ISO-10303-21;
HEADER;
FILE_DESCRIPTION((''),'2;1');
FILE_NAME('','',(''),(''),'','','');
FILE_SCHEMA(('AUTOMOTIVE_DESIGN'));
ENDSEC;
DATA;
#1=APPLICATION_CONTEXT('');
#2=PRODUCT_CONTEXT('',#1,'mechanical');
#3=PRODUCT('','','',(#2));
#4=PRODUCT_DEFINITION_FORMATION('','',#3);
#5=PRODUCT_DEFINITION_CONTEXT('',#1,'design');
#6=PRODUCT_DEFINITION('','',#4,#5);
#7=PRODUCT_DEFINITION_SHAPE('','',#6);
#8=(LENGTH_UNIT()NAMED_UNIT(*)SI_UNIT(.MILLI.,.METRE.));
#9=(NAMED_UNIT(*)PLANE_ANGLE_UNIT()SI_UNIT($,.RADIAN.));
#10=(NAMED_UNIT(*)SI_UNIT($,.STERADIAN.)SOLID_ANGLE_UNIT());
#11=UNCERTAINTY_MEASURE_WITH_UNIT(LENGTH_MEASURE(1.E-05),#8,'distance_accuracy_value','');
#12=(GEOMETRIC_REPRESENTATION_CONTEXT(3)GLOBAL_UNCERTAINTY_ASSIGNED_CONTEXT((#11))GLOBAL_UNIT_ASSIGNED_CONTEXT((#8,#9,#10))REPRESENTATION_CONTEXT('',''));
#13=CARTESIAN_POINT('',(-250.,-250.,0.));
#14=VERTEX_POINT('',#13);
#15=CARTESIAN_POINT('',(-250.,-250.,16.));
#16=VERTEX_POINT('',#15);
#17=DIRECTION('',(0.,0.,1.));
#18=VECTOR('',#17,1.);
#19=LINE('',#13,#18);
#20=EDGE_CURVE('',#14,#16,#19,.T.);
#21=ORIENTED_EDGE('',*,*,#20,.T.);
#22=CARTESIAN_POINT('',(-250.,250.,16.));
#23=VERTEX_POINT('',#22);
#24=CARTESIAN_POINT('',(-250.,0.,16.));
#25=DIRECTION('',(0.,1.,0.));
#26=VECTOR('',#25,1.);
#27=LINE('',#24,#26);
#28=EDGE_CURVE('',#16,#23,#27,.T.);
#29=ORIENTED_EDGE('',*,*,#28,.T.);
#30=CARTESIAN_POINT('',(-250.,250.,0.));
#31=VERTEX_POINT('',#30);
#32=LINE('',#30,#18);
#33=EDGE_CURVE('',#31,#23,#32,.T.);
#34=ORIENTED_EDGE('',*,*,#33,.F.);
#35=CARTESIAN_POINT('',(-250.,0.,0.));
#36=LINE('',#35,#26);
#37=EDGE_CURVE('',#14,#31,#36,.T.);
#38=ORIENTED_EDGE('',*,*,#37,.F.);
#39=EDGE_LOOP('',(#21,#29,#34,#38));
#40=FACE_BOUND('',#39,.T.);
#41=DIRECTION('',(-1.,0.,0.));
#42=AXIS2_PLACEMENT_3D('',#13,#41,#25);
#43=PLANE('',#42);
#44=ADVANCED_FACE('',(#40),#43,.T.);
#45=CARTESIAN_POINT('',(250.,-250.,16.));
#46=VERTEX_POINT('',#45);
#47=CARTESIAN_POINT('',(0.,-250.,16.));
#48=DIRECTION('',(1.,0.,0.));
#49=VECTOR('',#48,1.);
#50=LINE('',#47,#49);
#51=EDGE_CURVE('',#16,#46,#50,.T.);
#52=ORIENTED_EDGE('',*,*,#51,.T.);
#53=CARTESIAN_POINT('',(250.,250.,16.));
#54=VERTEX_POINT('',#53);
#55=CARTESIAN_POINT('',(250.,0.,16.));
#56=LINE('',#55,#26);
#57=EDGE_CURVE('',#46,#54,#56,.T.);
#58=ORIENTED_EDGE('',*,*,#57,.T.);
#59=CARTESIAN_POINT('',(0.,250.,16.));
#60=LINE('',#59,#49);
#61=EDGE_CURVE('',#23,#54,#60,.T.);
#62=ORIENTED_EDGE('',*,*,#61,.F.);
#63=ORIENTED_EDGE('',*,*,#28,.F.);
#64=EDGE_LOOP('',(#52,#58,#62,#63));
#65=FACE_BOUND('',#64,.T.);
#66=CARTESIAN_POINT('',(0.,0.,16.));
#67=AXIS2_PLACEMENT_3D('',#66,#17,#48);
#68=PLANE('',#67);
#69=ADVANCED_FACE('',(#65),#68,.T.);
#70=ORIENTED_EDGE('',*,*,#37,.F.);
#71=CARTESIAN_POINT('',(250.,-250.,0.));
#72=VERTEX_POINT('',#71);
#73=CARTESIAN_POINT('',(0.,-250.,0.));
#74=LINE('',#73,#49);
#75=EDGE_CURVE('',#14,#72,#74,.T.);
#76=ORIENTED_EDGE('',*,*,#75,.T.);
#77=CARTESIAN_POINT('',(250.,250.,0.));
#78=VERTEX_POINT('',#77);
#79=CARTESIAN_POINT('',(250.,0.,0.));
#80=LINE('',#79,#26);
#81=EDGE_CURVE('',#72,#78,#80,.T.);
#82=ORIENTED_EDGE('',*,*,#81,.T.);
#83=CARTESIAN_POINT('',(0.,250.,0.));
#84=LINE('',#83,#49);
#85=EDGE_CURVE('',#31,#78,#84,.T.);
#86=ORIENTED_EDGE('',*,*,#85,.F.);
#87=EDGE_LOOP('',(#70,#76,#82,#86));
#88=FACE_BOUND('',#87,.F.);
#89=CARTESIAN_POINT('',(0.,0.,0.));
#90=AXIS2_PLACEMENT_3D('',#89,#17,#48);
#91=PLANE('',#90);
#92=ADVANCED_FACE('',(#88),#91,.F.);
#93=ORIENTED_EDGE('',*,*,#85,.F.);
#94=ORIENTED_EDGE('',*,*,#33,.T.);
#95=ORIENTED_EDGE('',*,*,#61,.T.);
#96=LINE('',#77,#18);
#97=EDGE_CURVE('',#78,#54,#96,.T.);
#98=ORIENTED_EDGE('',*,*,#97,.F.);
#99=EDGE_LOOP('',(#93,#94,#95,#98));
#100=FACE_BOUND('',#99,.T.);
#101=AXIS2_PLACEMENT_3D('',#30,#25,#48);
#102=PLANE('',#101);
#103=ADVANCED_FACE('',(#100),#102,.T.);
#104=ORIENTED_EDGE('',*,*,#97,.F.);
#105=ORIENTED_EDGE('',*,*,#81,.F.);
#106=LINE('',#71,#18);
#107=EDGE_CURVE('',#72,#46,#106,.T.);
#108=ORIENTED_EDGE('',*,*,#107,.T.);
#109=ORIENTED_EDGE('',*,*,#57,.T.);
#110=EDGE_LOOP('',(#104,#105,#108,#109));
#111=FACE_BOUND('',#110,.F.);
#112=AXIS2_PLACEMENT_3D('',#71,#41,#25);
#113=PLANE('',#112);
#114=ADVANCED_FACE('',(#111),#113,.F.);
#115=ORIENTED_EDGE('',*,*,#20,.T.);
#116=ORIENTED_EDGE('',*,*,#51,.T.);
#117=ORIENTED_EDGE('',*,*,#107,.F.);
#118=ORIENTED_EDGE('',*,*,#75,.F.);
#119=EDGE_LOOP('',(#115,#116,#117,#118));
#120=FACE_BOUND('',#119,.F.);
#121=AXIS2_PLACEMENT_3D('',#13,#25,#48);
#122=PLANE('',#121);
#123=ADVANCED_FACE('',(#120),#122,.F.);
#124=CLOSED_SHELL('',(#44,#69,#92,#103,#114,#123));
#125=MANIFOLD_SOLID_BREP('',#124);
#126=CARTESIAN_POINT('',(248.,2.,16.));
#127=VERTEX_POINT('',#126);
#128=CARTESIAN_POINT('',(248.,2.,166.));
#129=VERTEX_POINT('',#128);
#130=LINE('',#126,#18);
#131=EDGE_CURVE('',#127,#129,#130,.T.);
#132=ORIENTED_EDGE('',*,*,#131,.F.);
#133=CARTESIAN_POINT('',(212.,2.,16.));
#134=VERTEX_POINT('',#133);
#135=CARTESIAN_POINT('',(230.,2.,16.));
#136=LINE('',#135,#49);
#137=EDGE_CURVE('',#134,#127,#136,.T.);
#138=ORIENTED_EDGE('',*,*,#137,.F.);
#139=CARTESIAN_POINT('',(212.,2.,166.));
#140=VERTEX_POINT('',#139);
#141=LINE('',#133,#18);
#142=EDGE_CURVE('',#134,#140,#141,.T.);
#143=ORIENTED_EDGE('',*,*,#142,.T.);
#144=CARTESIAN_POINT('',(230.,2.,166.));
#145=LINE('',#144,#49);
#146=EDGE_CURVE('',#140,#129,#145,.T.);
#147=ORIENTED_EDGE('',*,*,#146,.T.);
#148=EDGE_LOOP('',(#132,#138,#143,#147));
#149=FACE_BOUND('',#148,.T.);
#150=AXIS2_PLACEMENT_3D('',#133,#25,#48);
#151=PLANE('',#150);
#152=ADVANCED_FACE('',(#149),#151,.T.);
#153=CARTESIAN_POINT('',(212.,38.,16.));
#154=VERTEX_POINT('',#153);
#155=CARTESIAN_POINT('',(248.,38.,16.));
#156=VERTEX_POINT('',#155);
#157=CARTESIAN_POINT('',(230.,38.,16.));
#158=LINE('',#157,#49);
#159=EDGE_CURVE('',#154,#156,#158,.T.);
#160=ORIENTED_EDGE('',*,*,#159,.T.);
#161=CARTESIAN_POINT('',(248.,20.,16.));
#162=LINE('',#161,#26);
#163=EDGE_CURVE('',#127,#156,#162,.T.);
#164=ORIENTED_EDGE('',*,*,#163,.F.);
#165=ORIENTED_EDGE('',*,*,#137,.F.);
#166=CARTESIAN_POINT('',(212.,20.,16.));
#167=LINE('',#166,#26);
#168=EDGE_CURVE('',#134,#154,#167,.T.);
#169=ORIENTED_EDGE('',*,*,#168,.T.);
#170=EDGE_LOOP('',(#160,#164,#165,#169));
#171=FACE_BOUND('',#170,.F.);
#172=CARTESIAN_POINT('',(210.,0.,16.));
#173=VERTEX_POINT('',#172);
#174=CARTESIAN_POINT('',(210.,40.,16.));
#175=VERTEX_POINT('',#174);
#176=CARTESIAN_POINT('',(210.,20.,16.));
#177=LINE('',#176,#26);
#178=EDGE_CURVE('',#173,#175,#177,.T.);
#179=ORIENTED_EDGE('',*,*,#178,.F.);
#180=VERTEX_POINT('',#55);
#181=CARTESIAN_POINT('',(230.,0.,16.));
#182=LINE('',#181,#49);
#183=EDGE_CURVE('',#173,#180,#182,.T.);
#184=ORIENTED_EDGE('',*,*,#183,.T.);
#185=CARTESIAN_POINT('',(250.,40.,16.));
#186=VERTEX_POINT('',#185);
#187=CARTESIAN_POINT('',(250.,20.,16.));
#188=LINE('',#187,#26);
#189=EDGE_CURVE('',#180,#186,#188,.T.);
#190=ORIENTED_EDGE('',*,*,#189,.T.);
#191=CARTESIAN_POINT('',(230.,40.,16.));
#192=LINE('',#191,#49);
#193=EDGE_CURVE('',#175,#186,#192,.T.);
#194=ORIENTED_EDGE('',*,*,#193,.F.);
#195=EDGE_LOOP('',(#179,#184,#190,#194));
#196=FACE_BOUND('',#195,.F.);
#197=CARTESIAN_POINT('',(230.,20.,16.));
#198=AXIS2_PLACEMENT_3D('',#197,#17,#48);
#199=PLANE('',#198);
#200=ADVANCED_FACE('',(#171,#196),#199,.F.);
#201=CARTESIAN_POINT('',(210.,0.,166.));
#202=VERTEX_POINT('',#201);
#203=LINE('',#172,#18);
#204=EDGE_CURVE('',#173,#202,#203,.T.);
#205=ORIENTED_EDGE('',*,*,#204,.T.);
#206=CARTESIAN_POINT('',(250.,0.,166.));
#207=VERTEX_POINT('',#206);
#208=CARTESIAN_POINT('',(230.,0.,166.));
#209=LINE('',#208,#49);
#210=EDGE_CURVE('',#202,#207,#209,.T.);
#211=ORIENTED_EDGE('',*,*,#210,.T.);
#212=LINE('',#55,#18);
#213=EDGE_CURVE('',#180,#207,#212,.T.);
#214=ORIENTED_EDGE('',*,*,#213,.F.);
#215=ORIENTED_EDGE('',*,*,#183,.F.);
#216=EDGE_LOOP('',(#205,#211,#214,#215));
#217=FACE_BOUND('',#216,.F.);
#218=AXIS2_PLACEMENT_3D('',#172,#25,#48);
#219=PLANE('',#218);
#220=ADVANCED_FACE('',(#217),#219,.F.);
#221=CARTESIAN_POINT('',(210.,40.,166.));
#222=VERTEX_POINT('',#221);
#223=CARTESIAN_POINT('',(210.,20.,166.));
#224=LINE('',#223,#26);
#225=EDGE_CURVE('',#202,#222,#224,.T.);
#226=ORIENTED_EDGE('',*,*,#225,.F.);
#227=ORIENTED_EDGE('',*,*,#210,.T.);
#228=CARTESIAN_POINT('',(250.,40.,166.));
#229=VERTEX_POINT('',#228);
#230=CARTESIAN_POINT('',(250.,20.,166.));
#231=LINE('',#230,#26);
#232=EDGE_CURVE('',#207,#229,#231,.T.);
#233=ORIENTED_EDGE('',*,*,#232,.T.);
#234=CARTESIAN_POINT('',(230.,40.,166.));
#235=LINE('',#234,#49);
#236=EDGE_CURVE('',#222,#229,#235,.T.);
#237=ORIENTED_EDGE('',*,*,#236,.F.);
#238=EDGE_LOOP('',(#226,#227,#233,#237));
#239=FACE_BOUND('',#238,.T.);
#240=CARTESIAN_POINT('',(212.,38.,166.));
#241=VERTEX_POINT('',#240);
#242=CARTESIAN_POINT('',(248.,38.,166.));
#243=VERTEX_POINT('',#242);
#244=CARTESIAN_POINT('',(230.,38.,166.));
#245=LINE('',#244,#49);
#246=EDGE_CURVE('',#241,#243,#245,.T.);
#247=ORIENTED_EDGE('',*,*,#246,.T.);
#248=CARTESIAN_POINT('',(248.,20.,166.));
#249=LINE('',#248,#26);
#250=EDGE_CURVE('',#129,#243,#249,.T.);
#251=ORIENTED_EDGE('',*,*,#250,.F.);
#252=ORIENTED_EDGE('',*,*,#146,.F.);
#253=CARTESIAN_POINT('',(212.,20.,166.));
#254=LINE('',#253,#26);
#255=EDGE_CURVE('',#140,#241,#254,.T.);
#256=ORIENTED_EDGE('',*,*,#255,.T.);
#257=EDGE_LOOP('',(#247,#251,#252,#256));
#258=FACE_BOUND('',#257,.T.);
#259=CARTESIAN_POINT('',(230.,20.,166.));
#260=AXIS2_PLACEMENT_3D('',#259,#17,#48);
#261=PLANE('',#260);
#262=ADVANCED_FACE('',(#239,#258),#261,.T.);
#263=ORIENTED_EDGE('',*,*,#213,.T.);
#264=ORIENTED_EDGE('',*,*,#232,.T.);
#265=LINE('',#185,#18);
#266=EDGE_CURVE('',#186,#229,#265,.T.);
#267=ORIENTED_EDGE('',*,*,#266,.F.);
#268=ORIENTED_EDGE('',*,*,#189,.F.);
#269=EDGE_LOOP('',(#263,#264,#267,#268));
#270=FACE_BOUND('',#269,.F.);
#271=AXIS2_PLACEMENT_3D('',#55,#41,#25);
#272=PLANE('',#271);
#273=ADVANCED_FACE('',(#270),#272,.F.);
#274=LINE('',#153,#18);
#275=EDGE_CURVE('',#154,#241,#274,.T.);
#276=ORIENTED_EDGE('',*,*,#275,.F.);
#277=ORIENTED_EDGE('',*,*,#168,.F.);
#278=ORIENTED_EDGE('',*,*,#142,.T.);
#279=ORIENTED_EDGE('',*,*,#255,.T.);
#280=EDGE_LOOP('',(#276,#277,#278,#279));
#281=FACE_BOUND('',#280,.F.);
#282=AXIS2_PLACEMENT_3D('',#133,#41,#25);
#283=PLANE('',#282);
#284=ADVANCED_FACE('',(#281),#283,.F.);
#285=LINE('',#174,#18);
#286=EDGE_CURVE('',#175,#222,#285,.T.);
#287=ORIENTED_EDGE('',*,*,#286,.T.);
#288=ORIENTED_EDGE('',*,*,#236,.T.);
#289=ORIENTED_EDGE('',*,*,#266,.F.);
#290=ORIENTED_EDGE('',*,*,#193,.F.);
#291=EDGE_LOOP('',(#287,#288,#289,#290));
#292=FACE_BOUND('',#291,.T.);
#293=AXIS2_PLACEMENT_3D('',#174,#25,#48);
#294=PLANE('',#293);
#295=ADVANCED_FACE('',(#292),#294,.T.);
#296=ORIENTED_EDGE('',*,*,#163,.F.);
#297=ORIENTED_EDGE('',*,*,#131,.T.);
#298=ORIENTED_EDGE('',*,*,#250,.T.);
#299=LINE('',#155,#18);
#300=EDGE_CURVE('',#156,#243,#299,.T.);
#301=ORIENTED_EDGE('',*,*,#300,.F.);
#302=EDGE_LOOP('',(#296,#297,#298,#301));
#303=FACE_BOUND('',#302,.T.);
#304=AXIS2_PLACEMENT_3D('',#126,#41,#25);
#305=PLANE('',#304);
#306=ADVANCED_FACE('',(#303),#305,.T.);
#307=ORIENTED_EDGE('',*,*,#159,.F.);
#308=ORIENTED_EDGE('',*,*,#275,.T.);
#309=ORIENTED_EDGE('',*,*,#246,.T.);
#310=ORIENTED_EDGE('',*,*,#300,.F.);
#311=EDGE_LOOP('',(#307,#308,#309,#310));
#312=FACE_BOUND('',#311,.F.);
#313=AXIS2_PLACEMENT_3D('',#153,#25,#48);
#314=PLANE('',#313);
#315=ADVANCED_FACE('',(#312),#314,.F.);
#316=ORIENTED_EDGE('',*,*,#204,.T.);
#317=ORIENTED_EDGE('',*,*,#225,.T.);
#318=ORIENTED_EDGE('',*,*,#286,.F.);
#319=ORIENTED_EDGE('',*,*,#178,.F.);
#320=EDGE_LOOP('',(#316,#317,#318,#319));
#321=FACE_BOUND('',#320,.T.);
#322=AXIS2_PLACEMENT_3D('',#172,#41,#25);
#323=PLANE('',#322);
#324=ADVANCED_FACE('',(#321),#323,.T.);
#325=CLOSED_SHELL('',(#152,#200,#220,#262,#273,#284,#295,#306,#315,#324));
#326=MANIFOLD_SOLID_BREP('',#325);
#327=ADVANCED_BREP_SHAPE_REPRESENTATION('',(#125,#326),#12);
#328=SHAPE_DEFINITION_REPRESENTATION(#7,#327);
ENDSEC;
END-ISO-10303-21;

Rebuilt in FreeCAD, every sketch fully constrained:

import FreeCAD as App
import Part
import Sketcher

V = App.Vector


def add_polygon(sketch, points):
    """Adds a closed chain of lines whose ends are joined by coincident constraints."""
    first, n = sketch.GeometryCount, len(points)
    for a, b in zip(points, points[1:] + points[:1]):
        sketch.addGeometry(Part.LineSegment(App.Vector(*a, 0), App.Vector(*b, 0)), False)
    for i in range(n):
        sketch.addConstraint(Sketcher.Constraint("Coincident", first + i, 2, first + (i + 1) % n, 1))

doc = App.newDocument("Part")
body = doc.addObject("PartDesign::Body", "Body")

sketch1 = body.newObject("Sketcher::SketchObject", "Sketch")
sketch1.AttachmentSupport = (doc.getObject("XY_Plane"), [""])
sketch1.MapMode = "FlatFace"
add_polygon(sketch1, [(-250, 250), (-250, -250), (250, -250), (250, 250)])
sketch1.addConstraint(Sketcher.Constraint("Vertical", 0))
sketch1.addConstraint(Sketcher.Constraint("Horizontal", 1))
sketch1.addConstraint(Sketcher.Constraint("Vertical", 2))
sketch1.addConstraint(Sketcher.Constraint("Horizontal", 3))
sketch1.addConstraint(Sketcher.Constraint("Symmetric", 0, 2, 2, 2, -1, 1))
sketch1.addConstraint(Sketcher.Constraint("Equal", 3, 0))
sketch1.addConstraint(Sketcher.Constraint("DistanceX", 1, 1, 1, 2, 500.0))
pad1 = body.newObject("PartDesign::Pad", "Pad")
pad1.Profile = sketch1
pad1.Length = 16
body2 = doc.addObject("PartDesign::Body", "Body001")

sketch2 = body2.newObject("Sketcher::SketchObject", "Sketch001")
sketch2.AttachmentSupport = (doc.getObject("XY_Plane001"), [""])
sketch2.MapMode = "FlatFace"
sketch2.AttachmentOffset = App.Placement(V(0, 0, 16), App.Rotation())
add_polygon(sketch2, [(210, 40), (210, 0), (250, 0), (250, 40)])
add_polygon(sketch2, [(248, 2), (212, 2), (212, 38), (248, 38)])
sketch2.addConstraint(Sketcher.Constraint("Vertical", 0))
sketch2.addConstraint(Sketcher.Constraint("Horizontal", 1))
sketch2.addConstraint(Sketcher.Constraint("Vertical", 2))
sketch2.addConstraint(Sketcher.Constraint("Horizontal", 3))
sketch2.addConstraint(Sketcher.Constraint("Horizontal", 4))
sketch2.addConstraint(Sketcher.Constraint("Vertical", 5))
sketch2.addConstraint(Sketcher.Constraint("Horizontal", 6))
sketch2.addConstraint(Sketcher.Constraint("Vertical", 7))
sketch2.addConstraint(Sketcher.Constraint("PointOnObject", 0, 2, -1))
sketch2.addConstraint(Sketcher.Constraint("Equal", 3, 0))
sketch2.addConstraint(Sketcher.Constraint("Equal", 6, 5))
sketch2.addConstraint(Sketcher.Constraint("DistanceX", 1, 1, 1, 2, 40.0))
sketch2.addConstraint(Sketcher.Constraint("DistanceX", 4, 2, 4, 1, 36.0))
sketch2.addConstraint(Sketcher.Constraint("DistanceX", -1, 1, 0, 2, 210.0))
sketch2.addConstraint(Sketcher.Constraint("DistanceX", -1, 1, 4, 2, 212.0))
sketch2.addConstraint(Sketcher.Constraint("DistanceY", -1, 1, 4, 2, 2.0))
pad2 = body2.newObject("PartDesign::Pad", "Pad001")
pad2.Profile = sketch2
pad2.Length = 150

doc.recompute()
